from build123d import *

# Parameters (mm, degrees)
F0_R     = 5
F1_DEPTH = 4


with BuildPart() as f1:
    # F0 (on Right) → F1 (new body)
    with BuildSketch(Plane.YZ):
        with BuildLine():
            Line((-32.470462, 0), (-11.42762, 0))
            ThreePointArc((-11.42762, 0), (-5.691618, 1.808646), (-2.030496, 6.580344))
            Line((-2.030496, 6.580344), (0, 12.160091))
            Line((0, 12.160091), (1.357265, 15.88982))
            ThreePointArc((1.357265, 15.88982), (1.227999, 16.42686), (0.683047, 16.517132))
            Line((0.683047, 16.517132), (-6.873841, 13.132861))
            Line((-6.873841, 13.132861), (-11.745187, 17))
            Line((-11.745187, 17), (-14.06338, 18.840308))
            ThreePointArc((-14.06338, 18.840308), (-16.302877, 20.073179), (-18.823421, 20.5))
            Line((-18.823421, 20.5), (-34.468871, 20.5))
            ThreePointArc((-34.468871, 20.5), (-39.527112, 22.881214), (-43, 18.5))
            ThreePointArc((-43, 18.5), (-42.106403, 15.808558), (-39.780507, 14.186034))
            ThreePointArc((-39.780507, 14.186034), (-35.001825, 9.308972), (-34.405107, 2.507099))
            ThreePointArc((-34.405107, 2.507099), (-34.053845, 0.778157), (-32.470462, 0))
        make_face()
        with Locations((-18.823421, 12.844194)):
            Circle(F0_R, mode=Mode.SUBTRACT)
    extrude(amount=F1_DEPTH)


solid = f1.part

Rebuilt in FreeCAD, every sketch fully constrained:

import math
import FreeCAD as App
import Part
import Sketcher

V = App.Vector
Q = App.Units.Quantity

doc = App.newDocument("Part")
body = doc.addObject("PartDesign::Body", "Body")

sketch1 = body.newObject("Sketcher::SketchObject", "Sketch")
sketch1.AttachmentSupport = (doc.getObject("YZ_Plane"), [""])
sketch1.MapMode = "FlatFace"
sketch1.addGeometry(Part.LineSegment(V(-32.470462, 0, 0), V(-11.42762, 0, 0)), False)
sketch1.addGeometry(Part.ArcOfCircle(Part.Circle(V(-11.42762, 9.999998, 0), V(0, 0, 1), 9.999998), math.radians(-90.000003), math.radians(-19.996668)), False)
sketch1.addGeometry(Part.LineSegment(V(-2.030496, 6.580344, 0), V(0, 12.160091, 0)), False)
sketch1.addGeometry(Part.LineSegment(V(0, 12.160091, 0), V(1.357265, 15.88982, 0)), False)
sketch1.addGeometry(Part.ArcOfCircle(Part.Circle(V(0.887408, 16.060802, 0), V(0, 0, 1), 0.5), math.radians(-19.996598), math.radians(114.124591)), False)
sketch1.addGeometry(Part.LineSegment(V(0.683047, 16.517132, 0), V(-6.873841, 13.132861, 0)), False)
sketch1.addGeometry(Part.LineSegment(V(-6.873841, 13.132861, 0), V(-11.745187, 17, 0)), False)
sketch1.addGeometry(Part.LineSegment(V(-11.745187, 17, 0), V(-14.06338, 18.840308, 0)), False)
sketch1.addGeometry(Part.ArcOfCircle(Part.Circle(V(-18.823422, 12.84419, 0), V(0, 0, 1), 7.65581), math.radians(51.55556), math.radians(89.999996)), False)
sketch1.addGeometry(Part.LineSegment(V(-18.823421, 20.5, 0), V(-34.468871, 20.5, 0)), False)
sketch1.addGeometry(Part.ArcOfCircle(Part.Circle(V(-38.5, 18.499999, 0), V(0, 0, 1), 4.5), math.radians(26.387809), math.radians(179.999991)), False)
sketch1.addGeometry(Part.ArcOfCircle(Part.Circle(V(-38.500001, 18.499999, 0), V(0, 0, 1), 4.499999), math.radians(179.99999), math.radians(253.467632)), False)
sketch1.addGeometry(Part.ArcOfCircle(Part.Circle(V(-44.20123, 5.074811, 0), V(0, 0, 1), 10.127052), math.radians(-14.687671), math.radians(64.117552)), False)
sketch1.addGeometry(Part.ArcOfCircle(Part.Circle(V(-32.470463, 1.999999, 0), V(0, 0, 1), 1.999999), math.radians(165.312325), math.radians(270.000027)), False)
sketch1.addGeometry(Part.Circle(V(-18.823421, 12.844194, 0), V(0, 0, 1), 5), False)
sketch1.addConstraint(Sketcher.Constraint("Coincident", 0, 2, 1, 1))
sketch1.addConstraint(Sketcher.Constraint("Coincident", 1, 2, 2, 1))
sketch1.addConstraint(Sketcher.Constraint("Coincident", 2, 2, 3, 1))
sketch1.addConstraint(Sketcher.Constraint("Coincident", 3, 2, 4, 1))
sketch1.addConstraint(Sketcher.Constraint("Coincident", 4, 2, 5, 1))
sketch1.addConstraint(Sketcher.Constraint("Coincident", 5, 2, 6, 1))
sketch1.addConstraint(Sketcher.Constraint("Coincident", 6, 2, 7, 1))
sketch1.addConstraint(Sketcher.Constraint("Coincident", 7, 2, 8, 1))
sketch1.addConstraint(Sketcher.Constraint("Coincident", 8, 2, 9, 1))
sketch1.addConstraint(Sketcher.Constraint("Coincident", 9, 2, 10, 1))
sketch1.addConstraint(Sketcher.Constraint("Coincident", 10, 2, 11, 1))
sketch1.addConstraint(Sketcher.Constraint("Coincident", 11, 2, 12, 2))
sketch1.addConstraint(Sketcher.Constraint("Coincident", 12, 1, 13, 1))
sketch1.addConstraint(Sketcher.Constraint("Coincident", 13, 2, 0, 1))
sketch1.addConstraint(Sketcher.Constraint("Horizontal", 0))
sketch1.addConstraint(Sketcher.Constraint("Horizontal", 9))
sketch1.addConstraint(Sketcher.Constraint("Coincident", 11, 3, 10, 3))
sketch1.addConstraint(Sketcher.Constraint("Coincident", 14, 3, 8, 3))
sketch1.addConstraint(Sketcher.Constraint("PointOnObject", 0, 2, -1))
sketch1.addConstraint(Sketcher.Constraint("PointOnObject", 2, 2, -2))
sketch1.addConstraint(Sketcher.Constraint("Diameter", 14, Q("10 mm")))
sketch1.addConstraint(Sketcher.Constraint("Radius", 1, Q("9.999998 mm")))
sketch1.addConstraint(Sketcher.Constraint("Radius", 13, Q("1.999999 mm")))
sketch1.addConstraint(Sketcher.Constraint("Radius", 4, Q("0.5 mm")))
sketch1.addConstraint(Sketcher.Constraint("Radius", 10, Q("4.5 mm")))
sketch1.addConstraint(Sketcher.Constraint("DistanceY", -1, 1, 6, 2, Q("17 mm")))
sketch1.addConstraint(Sketcher.Constraint("DistanceX", 10, 2, -1, 1, Q("43 mm")))
sketch1.addConstraint(Sketcher.Constraint("DistanceY", 10, 3, 9, 2, Q("2.000001 mm")))
sketch1.addConstraint(Sketcher.Constraint("DistanceY", 10, 2, 9, 2, Q("2 mm")))
sketch1.addConstraint(Sketcher.Constraint("DistanceY", -1, 1, 10, 3, Q("18.499999 mm")))
sketch1.addConstraint(Sketcher.Constraint("Radius", 8, Q("7.65581 mm")))
sketch1.addConstraint(Sketcher.Constraint("Radius", 12, Q("10.127052 mm")))
sketch1.addConstraint(Sketcher.Constraint("DistanceX", 0, 1, 0, 2, Q("21.042842 mm")))
sketch1.addConstraint(Sketcher.Constraint("DistanceX", 9, 2, 9, 1, Q("15.64545 mm")))
sketch1.addConstraint(Sketcher.Constraint("DistanceY", -1, 1, 12, 1, Q("2.507099 mm")))
sketch1.addConstraint(Sketcher.Constraint("DistanceX", 8, 3, 1, 3, Q("7.395802 mm")))
sketch1.addConstraint(Sketcher.Constraint("DistanceX", 8, 3, 0, 2, Q("7.395802 mm")))
sketch1.addConstraint(Sketcher.Constraint("DistanceX", 8, 2, 1, 3, Q("7.395801 mm")))
sketch1.addConstraint(Sketcher.Constraint("DistanceX", 11, 2, 12, 1, Q("5.3754 mm")))
sketch1.addConstraint(Sketcher.Constraint("Distance", 3, Q("3.969011 mm")))
sketch1.addConstraint(Sketcher.Constraint("Distance", 6, Q("6.219709 mm")))
sketch1.addConstraint(Sketcher.Constraint("DistanceX", -1, 1, 4, 3, Q("0.887408 mm")))
sketch1.addConstraint(Sketcher.Constraint("DistanceX", 12, 3, -1, 1, Q("44.20123 mm")))
sketch1.addConstraint(Sketcher.Constraint("DistanceY", -1, 1, 2, 2, Q("12.160091 mm")))
sketch1.addConstraint(Sketcher.Constraint("DistanceY", -1, 1, 3, 2, Q("15.88982 mm")))
sketch1.addConstraint(Sketcher.Constraint("DistanceX", 5, 2, -1, 1, Q("6.873841 mm")))
sketch1.addConstraint(Sketcher.Constraint("DistanceY", -1, 1, 5, 2, Q("13.132861 mm")))
sketch1.addConstraint(Sketcher.Constraint("DistanceX", 7, 2, -1, 1, Q("14.06338 mm")))
sketch1.addConstraint(Sketcher.Constraint("DistanceY", 1, 2, 4, 3, Q("9.480458 mm")))
sketch1.addConstraint(Sketcher.Constraint("DistanceX", 4, 2, 4, 3, Q("0.204361 mm")))
pad1 = body.newObject("PartDesign::Pad", "Pad")
pad1.Profile = sketch1
pad1.Length = 4

doc.recompute()
